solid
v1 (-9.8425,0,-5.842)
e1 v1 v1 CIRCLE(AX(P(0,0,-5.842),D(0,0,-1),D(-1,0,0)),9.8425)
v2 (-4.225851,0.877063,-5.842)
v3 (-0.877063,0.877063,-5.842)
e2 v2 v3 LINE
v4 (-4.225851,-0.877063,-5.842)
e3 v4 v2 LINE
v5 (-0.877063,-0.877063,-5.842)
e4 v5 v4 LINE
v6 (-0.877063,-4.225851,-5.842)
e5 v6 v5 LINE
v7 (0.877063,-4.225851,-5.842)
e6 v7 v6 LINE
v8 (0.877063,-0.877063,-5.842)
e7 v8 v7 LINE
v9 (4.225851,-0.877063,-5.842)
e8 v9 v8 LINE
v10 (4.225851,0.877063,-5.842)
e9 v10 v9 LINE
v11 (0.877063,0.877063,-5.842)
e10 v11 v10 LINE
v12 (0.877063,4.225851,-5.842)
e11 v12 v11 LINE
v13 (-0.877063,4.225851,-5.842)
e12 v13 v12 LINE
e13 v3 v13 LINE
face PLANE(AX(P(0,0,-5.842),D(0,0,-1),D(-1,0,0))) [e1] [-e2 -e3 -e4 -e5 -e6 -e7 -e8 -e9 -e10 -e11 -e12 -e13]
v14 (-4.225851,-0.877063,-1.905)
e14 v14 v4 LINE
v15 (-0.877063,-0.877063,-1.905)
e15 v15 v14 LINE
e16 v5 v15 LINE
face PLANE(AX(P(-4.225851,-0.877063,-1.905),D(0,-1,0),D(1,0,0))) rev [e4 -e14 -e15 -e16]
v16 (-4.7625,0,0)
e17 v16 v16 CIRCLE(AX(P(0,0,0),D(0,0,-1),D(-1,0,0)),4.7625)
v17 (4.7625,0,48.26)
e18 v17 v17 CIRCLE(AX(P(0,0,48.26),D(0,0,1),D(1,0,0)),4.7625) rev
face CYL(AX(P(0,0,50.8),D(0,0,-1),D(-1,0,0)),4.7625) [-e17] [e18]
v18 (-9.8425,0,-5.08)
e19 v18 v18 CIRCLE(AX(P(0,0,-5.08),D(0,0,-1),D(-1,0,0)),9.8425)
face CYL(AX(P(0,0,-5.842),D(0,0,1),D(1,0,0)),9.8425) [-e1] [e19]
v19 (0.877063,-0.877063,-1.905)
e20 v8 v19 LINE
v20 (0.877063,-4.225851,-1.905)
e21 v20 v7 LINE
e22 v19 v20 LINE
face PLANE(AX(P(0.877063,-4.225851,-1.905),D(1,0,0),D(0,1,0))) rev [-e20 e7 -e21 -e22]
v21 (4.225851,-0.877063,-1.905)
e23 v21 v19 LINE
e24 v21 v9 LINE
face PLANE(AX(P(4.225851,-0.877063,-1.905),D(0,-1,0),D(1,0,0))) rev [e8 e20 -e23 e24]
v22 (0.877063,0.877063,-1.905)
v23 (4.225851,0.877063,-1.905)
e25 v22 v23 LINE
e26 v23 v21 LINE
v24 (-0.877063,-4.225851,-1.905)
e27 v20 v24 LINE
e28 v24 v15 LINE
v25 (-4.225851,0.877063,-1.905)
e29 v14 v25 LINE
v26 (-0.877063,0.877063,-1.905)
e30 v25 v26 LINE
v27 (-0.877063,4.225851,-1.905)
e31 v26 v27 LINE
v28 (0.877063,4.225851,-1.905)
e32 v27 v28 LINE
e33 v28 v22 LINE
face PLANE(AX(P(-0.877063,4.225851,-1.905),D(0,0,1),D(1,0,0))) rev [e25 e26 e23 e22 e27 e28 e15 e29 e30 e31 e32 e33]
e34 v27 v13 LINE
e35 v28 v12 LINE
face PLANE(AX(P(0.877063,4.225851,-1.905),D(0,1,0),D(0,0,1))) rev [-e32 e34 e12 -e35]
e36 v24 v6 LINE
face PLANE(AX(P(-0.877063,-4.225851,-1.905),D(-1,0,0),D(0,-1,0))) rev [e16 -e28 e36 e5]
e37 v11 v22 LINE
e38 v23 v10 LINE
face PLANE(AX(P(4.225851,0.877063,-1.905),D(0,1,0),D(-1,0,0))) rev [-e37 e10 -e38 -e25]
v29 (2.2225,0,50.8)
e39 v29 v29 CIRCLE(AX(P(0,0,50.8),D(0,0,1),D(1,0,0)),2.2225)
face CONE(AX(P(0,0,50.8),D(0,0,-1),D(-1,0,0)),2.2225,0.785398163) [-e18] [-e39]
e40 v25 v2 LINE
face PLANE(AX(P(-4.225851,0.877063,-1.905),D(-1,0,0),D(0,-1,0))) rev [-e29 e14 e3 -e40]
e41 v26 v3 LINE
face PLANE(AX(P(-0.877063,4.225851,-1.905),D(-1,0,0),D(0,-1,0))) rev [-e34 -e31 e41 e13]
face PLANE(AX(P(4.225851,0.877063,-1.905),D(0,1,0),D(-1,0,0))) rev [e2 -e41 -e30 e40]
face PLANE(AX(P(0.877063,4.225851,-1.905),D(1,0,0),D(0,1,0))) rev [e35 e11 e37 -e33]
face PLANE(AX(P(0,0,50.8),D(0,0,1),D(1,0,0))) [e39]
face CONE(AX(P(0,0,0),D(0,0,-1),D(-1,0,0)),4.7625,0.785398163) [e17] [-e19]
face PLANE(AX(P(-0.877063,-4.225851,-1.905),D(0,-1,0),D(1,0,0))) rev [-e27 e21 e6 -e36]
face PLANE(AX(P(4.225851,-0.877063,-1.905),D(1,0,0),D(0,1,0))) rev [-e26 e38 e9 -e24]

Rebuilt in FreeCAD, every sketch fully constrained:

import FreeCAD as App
import Part
import Sketcher
from FreeCAD import Vector
Q = App.Units.Quantity


def edges_at(feature, points):
    """Names of the edges that pass closest to the given points."""
    edges = feature.Shape.Edges
    near = lambda p: min(range(len(edges)), key=lambda i: edges[i].distToShape(Part.Vertex(*p))[0])
    return sorted({f"Edge{near(p) + 1}" for p in points})

doc = App.newDocument("Part")
body = doc.addObject("PartDesign::Body", "Body")

# Sketch on XY plane
sketch1 = body.newObject("Sketcher::SketchObject", "Sketch")
sketch1.AttachmentSupport = (doc.getObject("XY_Plane"), [""])
sketch1.MapMode = "FlatFace"
sketch1.addGeometry(Part.Circle(Vector(0, 0, 0), Vector(0, 0, 1), 4.8), False)
sketch1.addConstraint(Sketcher.Constraint("Coincident", 0, 3, -1, 1))
sketch1.addConstraint(Sketcher.Constraint("Diameter", 0, Q("0.375 in")))
pad1 = body.newObject("PartDesign::Pad", "Pad")
pad1.Profile = sketch1
pad1.Length = Q("2 in")

# Sketch on XY plane
sketch2 = body.newObject("Sketcher::SketchObject", "Sketch001")
sketch2.AttachmentSupport = (doc.getObject("XY_Plane"), [""])
sketch2.MapMode = "FlatFace"
sketch2.addGeometry(Part.Circle(Vector(0, 0, 0), Vector(0, 0, 1), 4.8), False)
sketch2.addConstraint(Sketcher.Constraint("Coincident", 0, 3, -1, 1))
sketch2.addConstraint(Sketcher.Constraint("Diameter", 0, Q("0.375 in")))
pad2 = body.newObject("PartDesign::Pad", "Pad001")
pad2.Profile = sketch2
pad2.Length = Q("0.2 in")
pad2.Reversed = True
pad2.TaperAngle = 45

# Sketch on XY plane
sketch3 = body.newObject("Sketcher::SketchObject", "Sketch002")
sketch3.AttachmentSupport = (doc.getObject("XY_Plane"), [""])
sketch3.MapMode = "FlatFace"
sketch3.AttachmentOffset = App.Placement(Vector(0, 0, -0.2 * 25.4), App.Rotation())
sketch3.addGeometry(Part.LineSegment(Vector(0.9, 4.2, 0), Vector(0.9, 0, 0)), False)
sketch3.addGeometry(Part.LineSegment(Vector(0.9, 0, 0), Vector(-0.9, 0, 0)), False)
sketch3.addGeometry(Part.LineSegment(Vector(-0.9, 0, 0), Vector(-0.9, 4.2, 0)), False)
sketch3.addGeometry(Part.LineSegment(Vector(-0.9, 4.2, 0), Vector(0.9, 4.2, 0)), False)
sketch3.addConstraint(Sketcher.Constraint("Coincident", 0, 2, 1, 1))
sketch3.addConstraint(Sketcher.Constraint("Coincident", 1, 2, 2, 1))
sketch3.addConstraint(Sketcher.Constraint("Coincident", 2, 2, 3, 1))
sketch3.addConstraint(Sketcher.Constraint("Coincident", 3, 2, 0, 1))
sketch3.addConstraint(Sketcher.Constraint("Vertical", 0))
sketch3.addConstraint(Sketcher.Constraint("Horizontal", 1))
sketch3.addConstraint(Sketcher.Constraint("Vertical", 2))
sketch3.addConstraint(Sketcher.Constraint("Horizontal", 3))
sketch3.addConstraint(Sketcher.Constraint("Symmetric", 0, 2, 1, 2, -1, 1))
sketch3.addConstraint(Sketcher.Constraint("DistanceY", 0, 2, 0, 1, Q("4.225851 mm")))
sketch3.addConstraint(Sketcher.Constraint("DistanceX", 1, 2, 1, 1, Q("1.754127 mm")))
pocket1 = body.newObject("PartDesign::Pocket", "Pocket")
pocket1.Profile = sketch3
pocket1.Length = Q("0.125 in")
pocket1.Reversed = True
doc.recompute()

polarpattern = body.newObject("PartDesign::PolarPattern", "PolarPattern")
polarpattern.Originals = [pocket1]
polarpattern.Axis = (doc.getObject("Z_Axis"), [""])
polarpattern.Angle = 360
polarpattern.Occurrences = 4
body.Tip = polarpattern

# Sketch on XY plane
sketch4 = body.newObject("Sketcher::SketchObject", "Sketch003")
sketch4.AttachmentSupport = (doc.getObject("XY_Plane"), [""])
sketch4.MapMode = "FlatFace"
sketch4.AttachmentOffset = App.Placement(Vector(0, 0, -0.2 * 25.4), App.Rotation())
sketch4.addGeometry(Part.Circle(Vector(0, 0, 0), Vector(0, 0, 1), 9.8), False)
sketch4.addGeometry(Part.LineSegment(Vector(4.2, 0.9, 0), Vector(0.9, 0.9, 0)), False)
sketch4.addGeometry(Part.LineSegment(Vector(0.9, 0.9, 0), Vector(0.9, 4.2, 0)), False)
sketch4.addGeometry(Part.LineSegment(Vector(0.9, 4.2, 0), Vector(-0.9, 4.2, 0)), False)
sketch4.addGeometry(Part.LineSegment(Vector(-0.9, 4.2, 0), Vector(-0.9, 0.9, 0)), False)
sketch4.addGeometry(Part.LineSegment(Vector(-0.9, 0.9, 0), Vector(-4.2, 0.9, 0)), False)
sketch4.addGeometry(Part.LineSegment(Vector(-4.2, 0.9, 0), Vector(-4.2, -0.9, 0)), False)
sketch4.addGeometry(Part.LineSegment(Vector(-4.2, -0.9, 0), Vector(-0.9, -0.9, 0)), False)
sketch4.addGeometry(Part.LineSegment(Vector(-0.9, -0.9, 0), Vector(-0.9, -4.2, 0)), False)
sketch4.addGeometry(Part.LineSegment(Vector(-0.9, -4.2, 0), Vector(0.9, -4.2, 0)), False)
sketch4.addGeometry(Part.LineSegment(Vector(0.9, -4.2, 0), Vector(0.9, -0.9, 0)), False)
sketch4.addGeometry(Part.LineSegment(Vector(0.9, -0.9, 0), Vector(4.2, -0.9, 0)), False)
sketch4.addGeometry(Part.LineSegment(Vector(4.2, -0.9, 0), Vector(4.2, 0.9, 0)), False)
sketch4.addConstraint(Sketcher.Constraint("Coincident", 1, 2, 2, 1))
sketch4.addConstraint(Sketcher.Constraint("Coincident", 2, 2, 3, 1))
sketch4.addConstraint(Sketcher.Constraint("Coincident", 3, 2, 4, 1))
sketch4.addConstraint(Sketcher.Constraint("Coincident", 4, 2, 5, 1))
sketch4.addConstraint(Sketcher.Constraint("Coincident", 5, 2, 6, 1))
sketch4.addConstraint(Sketcher.Constraint("Coincident", 6, 2, 7, 1))
sketch4.addConstraint(Sketcher.Constraint("Coincident", 7, 2, 8, 1))
sketch4.addConstraint(Sketcher.Constraint("Coincident", 8, 2, 9, 1))
sketch4.addConstraint(Sketcher.Constraint("Coincident", 9, 2, 10, 1))
sketch4.addConstraint(Sketcher.Constraint("Coincident", 10, 2, 11, 1))
sketch4.addConstraint(Sketcher.Constraint("Coincident", 11, 2, 12, 1))
sketch4.addConstraint(Sketcher.Constraint("Coincident", 12, 2, 1, 1))
sketch4.addConstraint(Sketcher.Constraint("Horizontal", 1))
sketch4.addConstraint(Sketcher.Constraint("Vertical", 2))
sketch4.addConstraint(Sketcher.Constraint("Horizontal", 3))
sketch4.addConstraint(Sketcher.Constraint("Vertical", 4))
sketch4.addConstraint(Sketcher.Constraint("Horizontal", 5))
sketch4.addConstraint(Sketcher.Constraint("Vertical", 6))
sketch4.addConstraint(Sketcher.Constraint("Horizontal", 7))
sketch4.addConstraint(Sketcher.Constraint("Vertical", 8))
sketch4.addConstraint(Sketcher.Constraint("Horizontal", 9))
sketch4.addConstraint(Sketcher.Constraint("Vertical", 10))
sketch4.addConstraint(Sketcher.Constraint("Horizontal", 11))
sketch4.addConstraint(Sketcher.Constraint("Vertical", 12))
sketch4.addConstraint(Sketcher.Constraint("Coincident", 0, 3, -1, 1))
sketch4.addConstraint(Sketcher.Constraint("Symmetric", 1, 2, 7, 2, -1, 1))
sketch4.addConstraint(Sketcher.Constraint("Symmetric", 3, 2, 9, 2, -1, 1))
sketch4.addConstraint(Sketcher.Constraint("Symmetric", 5, 2, 11, 2, -1, 1))
sketch4.addConstraint(Sketcher.Constraint("Symmetric", 1, 2, 4, 2, -2))
sketch4.addConstraint(Sketcher.Constraint("Equal", 11, 2))
sketch4.addConstraint(Sketcher.Constraint("Equal", 9, 6))
sketch4.addConstraint(Sketcher.Constraint("Diameter", 0, Q("0.775 in")))
sketch4.addConstraint(Sketcher.Constraint("DistanceX", 1, 2, 1, 1, Q("3.348788 mm")))
sketch4.addConstraint(Sketcher.Constraint("DistanceX", 3, 2, 3, 1, Q("1.754127 mm")))
pad3 = body.newObject("PartDesign::Pad", "Pad002")
pad3.Profile = sketch4
pad3.Length = Q("0.03 in")
pad3.Reversed = True
doc.recompute()

chamfer = body.newObject("PartDesign::Chamfer", "Chamfer")
chamfer.Base = (pad3, edges_at(pad3, [(-4.763, 0, 50.8)]))
chamfer.Size = Q("0.1 in")

doc.recompute()
